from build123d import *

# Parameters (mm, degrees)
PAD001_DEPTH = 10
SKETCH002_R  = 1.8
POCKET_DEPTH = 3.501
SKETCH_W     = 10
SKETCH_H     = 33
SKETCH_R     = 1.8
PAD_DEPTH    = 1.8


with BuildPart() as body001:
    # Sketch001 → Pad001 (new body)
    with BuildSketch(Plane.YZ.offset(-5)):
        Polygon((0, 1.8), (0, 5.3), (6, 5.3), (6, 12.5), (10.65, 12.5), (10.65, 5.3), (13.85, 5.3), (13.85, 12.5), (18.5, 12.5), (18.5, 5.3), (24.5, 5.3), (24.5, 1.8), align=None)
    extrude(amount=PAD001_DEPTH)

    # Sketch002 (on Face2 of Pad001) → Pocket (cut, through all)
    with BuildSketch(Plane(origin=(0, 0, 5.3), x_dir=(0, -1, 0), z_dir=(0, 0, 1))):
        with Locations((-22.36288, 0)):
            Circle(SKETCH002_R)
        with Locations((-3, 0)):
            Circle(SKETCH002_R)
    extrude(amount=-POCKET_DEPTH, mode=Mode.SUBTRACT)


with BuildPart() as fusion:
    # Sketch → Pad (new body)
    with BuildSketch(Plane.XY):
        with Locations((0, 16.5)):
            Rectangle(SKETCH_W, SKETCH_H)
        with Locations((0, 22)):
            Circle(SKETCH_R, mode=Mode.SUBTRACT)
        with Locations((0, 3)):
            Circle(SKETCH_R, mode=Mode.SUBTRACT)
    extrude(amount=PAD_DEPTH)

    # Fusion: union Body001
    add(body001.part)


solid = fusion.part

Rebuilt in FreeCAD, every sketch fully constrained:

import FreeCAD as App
import Part
import Sketcher

doc = App.newDocument("Part")
body = doc.addObject("PartDesign::Body", "Body")

# Sketch on YZ plane
sketch1 = doc.addObject("Sketcher::SketchObject", "Sketch")
body.addObject(sketch1)
sketch1.AttachmentSupport = (doc.YZ_Plane, [""])
sketch1.MapMode = "FlatFace"
sketch1.AttachmentOffset = App.Placement(App.Vector(0, 0, -5), App.Rotation())
sketch1.addGeometry([
    Part.LineSegment(App.Vector(0, 5.3, 0), App.Vector(0, 1.8, 0)),  # 0
    Part.LineSegment(App.Vector(0, 1.8, 0), App.Vector(24.5, 1.8, 0)),  # 1
    Part.LineSegment(App.Vector(24.5, 1.8, 0), App.Vector(24.5, 5.3, 0)),  # 2
    Part.LineSegment(App.Vector(24.5, 5.3, 0), App.Vector(18.5, 5.3, 0)),  # 3
    Part.LineSegment(App.Vector(18.5, 5.3, 0), App.Vector(18.5, 12.5, 0)),  # 4
    Part.LineSegment(App.Vector(18.5, 12.5, 0), App.Vector(13.85, 12.5, 0)),  # 5
    Part.LineSegment(App.Vector(13.85, 12.5, 0), App.Vector(13.85, 5.3, 0)),  # 6
    Part.LineSegment(App.Vector(13.85, 5.3, 0), App.Vector(10.65, 5.3, 0)),  # 7
    Part.LineSegment(App.Vector(10.65, 5.3, 0), App.Vector(10.65, 12.5, 0)),  # 8
    Part.LineSegment(App.Vector(10.65, 12.5, 0), App.Vector(6, 12.5, 0)),  # 9
    Part.LineSegment(App.Vector(6, 12.5, 0), App.Vector(6, 5.3, 0)),  # 10
    Part.LineSegment(App.Vector(6, 5.3, 0), App.Vector(0, 5.3, 0)),  # 11
], False)
sketch1.addConstraint([
    Sketcher.Constraint("Coincident", 0, 2, 1, 1),
    Sketcher.Constraint("Coincident", 1, 2, 2, 1),
    Sketcher.Constraint("Coincident", 2, 2, 3, 1),
    Sketcher.Constraint("Coincident", 3, 2, 4, 1),
    Sketcher.Constraint("Coincident", 4, 2, 5, 1),
    Sketcher.Constraint("Coincident", 5, 2, 6, 1),
    Sketcher.Constraint("Coincident", 6, 2, 7, 1),
    Sketcher.Constraint("Coincident", 7, 2, 8, 1),
    Sketcher.Constraint("Coincident", 8, 2, 9, 1),
    Sketcher.Constraint("Coincident", 9, 2, 10, 1),
    Sketcher.Constraint("Coincident", 10, 2, 11, 1),
    Sketcher.Constraint("Coincident", 11, 2, 0, 1),
    Sketcher.Constraint("Vertical", 0),
    Sketcher.Constraint("Horizontal", 1),
    Sketcher.Constraint("Vertical", 2),
    Sketcher.Constraint("Horizontal", 3),
    Sketcher.Constraint("Vertical", 4),
    Sketcher.Constraint("Horizontal", 5),
    Sketcher.Constraint("Vertical", 6),
    Sketcher.Constraint("Horizontal", 7),
    Sketcher.Constraint("Vertical", 8),
    Sketcher.Constraint("Horizontal", 9),
    Sketcher.Constraint("Vertical", 10),
    Sketcher.Constraint("Horizontal", 11),
    Sketcher.Constraint("PointOnObject", 0, 2, -2),
    Sketcher.Constraint("Horizontal", 3, 2, 6, 2),
    Sketcher.Constraint("Horizontal", 5, 2, 8, 2),
    Sketcher.Constraint("Horizontal", 7, 2, 10, 2),
    Sketcher.Constraint("Equal", 5, 9),
    Sketcher.Constraint("Equal", 3, 11),
    Sketcher.Constraint("DistanceX", 3, 2, 3, 1, 6.0),
    Sketcher.Constraint("DistanceX", 1, 1, 1, 2, 24.5),
    Sketcher.Constraint("DistanceX", 7, 2, 7, 1, 3.2),
    Sketcher.Constraint("DistanceY", 0, 2, 0, 1, 3.5),
    Sketcher.Constraint("DistanceY", 4, 1, 4, 2, 7.2),
    Sketcher.Constraint("DistanceY", -1, 1, 0, 2, 1.8),
])
pad1 = doc.addObject("PartDesign::Pad", "Pad")
body.addObject(pad1)
pad1.Profile = sketch1
pad1.Length = 10

# Sketch on XY plane
sketch2 = doc.addObject("Sketcher::SketchObject", "Sketch001")
body.addObject(sketch2)
sketch2.AttachmentSupport = (doc.XY_Plane, [""])
sketch2.MapMode = "FlatFace"
sketch2.AttachmentOffset = App.Placement(App.Vector(0, 0, 5.3), App.Rotation())
sketch2.addGeometry([
    Part.Circle(App.Vector(0, 22.36288, 0), App.Vector(0, 0, 1), 1.8),
    Part.Circle(App.Vector(0, 3, 0), App.Vector(0, 0, 1), 1.8),
], False)
sketch2.addConstraint([
    Sketcher.Constraint("Equal", 0, 1),
    Sketcher.Constraint("PointOnObject", 0, 3, -2),
    Sketcher.Constraint("PointOnObject", 1, 3, -2),
    Sketcher.Constraint("Diameter", 0, 3.6),
    Sketcher.Constraint("DistanceY", -1, 1, 1, 3, 3.0),
    Sketcher.Constraint("DistanceY", -1, 1, 0, 3, 22.36288),
])
pocket1 = doc.addObject("PartDesign::Pocket", "Pocket")
body.addObject(pocket1)
pocket1.Profile = sketch2
pocket1.Type = "ThroughAll"
body2 = doc.addObject("PartDesign::Body", "Body001")

# Sketch on XY plane
sketch3 = doc.addObject("Sketcher::SketchObject", "Sketch002")
body2.addObject(sketch3)
sketch3.AttachmentSupport = (doc.getObject("XY_Plane001"), [""])
sketch3.MapMode = "FlatFace"
sketch3.addGeometry([
    Part.LineSegment(App.Vector(-5, 33, 0), App.Vector(-5, 0, 0)),  # 0
    Part.LineSegment(App.Vector(-5, 0, 0), App.Vector(5, 0, 0)),  # 1
    Part.LineSegment(App.Vector(5, 0, 0), App.Vector(5, 33, 0)),  # 2
    Part.LineSegment(App.Vector(5, 33, 0), App.Vector(-5, 33, 0)),  # 3
    Part.Circle(App.Vector(0, 3, 0), App.Vector(0, 0, 1), 1.8),  # 4
    Part.Circle(App.Vector(0, 22, 0), App.Vector(0, 0, 1), 1.8),  # 5
], False)
sketch3.addConstraint([
    Sketcher.Constraint("Coincident", 0, 2, 1, 1),
    Sketcher.Constraint("Coincident", 1, 2, 2, 1),
    Sketcher.Constraint("Coincident", 2, 2, 3, 1),
    Sketcher.Constraint("Coincident", 3, 2, 0, 1),
    Sketcher.Constraint("Vertical", 0),
    Sketcher.Constraint("Horizontal", 1),
    Sketcher.Constraint("Vertical", 2),
    Sketcher.Constraint("Horizontal", 3),
    Sketcher.Constraint("Equal", 4, 5),
    Sketcher.Constraint("Symmetric", 0, 2, 1, 2, -1, 1),
    Sketcher.Constraint("PointOnObject", 4, 3, -2),
    Sketcher.Constraint("PointOnObject", 5, 3, -2),
    Sketcher.Constraint("Diameter", 4, 3.6),
    Sketcher.Constraint("DistanceX", 1, 1, 1, 2, 10.0),
    Sketcher.Constraint("DistanceY", 0, 2, 0, 1, 33.0),
    Sketcher.Constraint("DistanceY", -1, 1, 4, 3, 3.0),
    Sketcher.Constraint("DistanceY", -1, 1, 5, 3, 22.0),
])
pad2 = doc.addObject("PartDesign::Pad", "Pad001")
body2.addObject(pad2)
pad2.Profile = sketch3
pad2.Length = 1.8
doc.recompute()

boolean = doc.addObject("PartDesign::Boolean", "Boolean")
body2.addObject(boolean)
boolean.Type = "Fuse"
boolean.addObjects([body])

doc.recompute()
